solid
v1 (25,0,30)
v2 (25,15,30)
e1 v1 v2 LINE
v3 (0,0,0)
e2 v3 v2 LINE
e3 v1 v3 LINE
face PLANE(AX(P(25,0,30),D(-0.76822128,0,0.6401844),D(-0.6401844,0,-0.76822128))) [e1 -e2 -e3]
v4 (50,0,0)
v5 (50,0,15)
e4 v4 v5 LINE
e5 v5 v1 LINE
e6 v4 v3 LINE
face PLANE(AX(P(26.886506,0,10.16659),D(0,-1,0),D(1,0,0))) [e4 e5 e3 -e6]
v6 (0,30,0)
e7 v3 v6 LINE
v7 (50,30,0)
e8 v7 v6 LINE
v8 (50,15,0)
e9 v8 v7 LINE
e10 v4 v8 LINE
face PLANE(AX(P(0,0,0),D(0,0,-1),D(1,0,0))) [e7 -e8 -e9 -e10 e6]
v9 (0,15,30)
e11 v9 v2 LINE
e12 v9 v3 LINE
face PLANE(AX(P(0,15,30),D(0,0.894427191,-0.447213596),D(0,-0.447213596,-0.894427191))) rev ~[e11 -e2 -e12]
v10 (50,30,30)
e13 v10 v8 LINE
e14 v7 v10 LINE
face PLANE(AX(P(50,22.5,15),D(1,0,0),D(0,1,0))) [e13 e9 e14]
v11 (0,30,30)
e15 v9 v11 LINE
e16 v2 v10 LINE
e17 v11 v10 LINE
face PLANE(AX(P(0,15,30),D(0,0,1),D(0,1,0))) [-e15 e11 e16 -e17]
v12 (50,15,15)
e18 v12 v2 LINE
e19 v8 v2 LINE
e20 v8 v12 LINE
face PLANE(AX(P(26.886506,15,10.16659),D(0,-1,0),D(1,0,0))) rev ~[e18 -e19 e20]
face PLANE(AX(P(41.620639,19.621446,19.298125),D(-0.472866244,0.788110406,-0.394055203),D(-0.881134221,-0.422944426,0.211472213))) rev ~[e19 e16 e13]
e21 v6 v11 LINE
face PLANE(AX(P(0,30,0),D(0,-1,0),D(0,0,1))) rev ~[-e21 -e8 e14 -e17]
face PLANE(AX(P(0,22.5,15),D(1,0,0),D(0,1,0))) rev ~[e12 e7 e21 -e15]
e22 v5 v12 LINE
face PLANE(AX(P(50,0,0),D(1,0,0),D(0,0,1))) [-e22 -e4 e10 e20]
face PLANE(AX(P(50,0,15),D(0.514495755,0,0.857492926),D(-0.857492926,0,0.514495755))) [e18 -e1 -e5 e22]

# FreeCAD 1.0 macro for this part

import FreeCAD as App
import Part
import Sketcher
from FreeCAD import Vector
Q = App.Units.Quantity

doc = App.newDocument("Part")
body = doc.addObject("PartDesign::Body", "Body")

sketch1 = doc.addObject("Sketcher::SketchObject", "Sketch")
body.addObject(sketch1)
sketch1.AttachmentSupport = (doc.YZ_Plane, [""])
sketch1.MapMode = "FlatFace"
sketch1.addGeometry(Part.LineSegment(Vector(30, 0, 0), Vector(30, 30, 0)), False)
sketch1.addGeometry(Part.LineSegment(Vector(30, 30, 0), Vector(15, 30, 0)), False)
sketch1.addGeometry(Part.LineSegment(Vector(15, 30, 0), Vector(0, 0, 0)), False)
sketch1.addGeometry(Part.LineSegment(Vector(0, 0, 0), Vector(30, 0, 0)), False)
sketch1.addConstraint(Sketcher.Constraint("Coincident", 0, 2, 1, 1))
sketch1.addConstraint(Sketcher.Constraint("Coincident", 1, 2, 2, 1))
sketch1.addConstraint(Sketcher.Constraint("Coincident", 2, 2, 3, 1))
sketch1.addConstraint(Sketcher.Constraint("Coincident", 3, 2, 0, 1))
sketch1.addConstraint(Sketcher.Constraint("Vertical", 0))
sketch1.addConstraint(Sketcher.Constraint("Horizontal", 1))
sketch1.addConstraint(Sketcher.Constraint("Horizontal", 3))
sketch1.addConstraint(Sketcher.Constraint("Coincident", 2, 2, -1, 1))
sketch1.addConstraint(Sketcher.Constraint("Equal", 3, 0))
sketch1.addConstraint(Sketcher.Constraint("DistanceX", 1, 2, 1, 1, Q("15 mm")))
sketch1.addConstraint(Sketcher.Constraint("DistanceX", 3, 1, 3, 2, Q("30 mm")))
pad1 = doc.addObject("PartDesign::Pad", "Pad")
body.addObject(pad1)
pad1.Profile = sketch1
pad1.Length = 25

sketch2 = doc.addObject("Sketcher::SketchObject", "Sketch001")
body.addObject(sketch2)
sketch2.AttachmentSupport = (doc.YZ_Plane, [""])
sketch2.MapMode = "FlatFace"
sketch2.addGeometry(Part.LineSegment(Vector(15, 30, 0), Vector(15, 0, 0)), False)
sketch2.addGeometry(Part.LineSegment(Vector(15, 0, 0), Vector(30, 0, 0)), False)
sketch2.addGeometry(Part.LineSegment(Vector(30, 0, 0), Vector(30, 30, 0)), False)
sketch2.addGeometry(Part.LineSegment(Vector(30, 30, 0), Vector(15, 30, 0)), False)
sketch2.addConstraint(Sketcher.Constraint("Coincident", 0, 2, 1, 1))
sketch2.addConstraint(Sketcher.Constraint("Coincident", 1, 2, 2, 1))
sketch2.addConstraint(Sketcher.Constraint("Coincident", 2, 2, 3, 1))
sketch2.addConstraint(Sketcher.Constraint("Coincident", 3, 2, 0, 1))
sketch2.addConstraint(Sketcher.Constraint("Vertical", 0))
sketch2.addConstraint(Sketcher.Constraint("Horizontal", 1))
sketch2.addConstraint(Sketcher.Constraint("Vertical", 2))
sketch2.addConstraint(Sketcher.Constraint("Horizontal", 3))
sketch2.addConstraint(Sketcher.Constraint("PointOnObject", 0, 2, -1))
sketch2.addConstraint(Sketcher.Constraint("DistanceX", 1, 1, 1, 2, Q("15 mm")))
sketch2.addConstraint(Sketcher.Constraint("DistanceY", 0, 2, 0, 1, Q("30 mm")))
sketch2.addConstraint(Sketcher.Constraint("DistanceX", -1, 1, 0, 2, Q("15 mm")))
pad2 = doc.addObject("PartDesign::Pad", "Pad001")
body.addObject(pad2)
pad2.Profile = sketch2
pad2.Length = 50

sketch3 = doc.addObject("Sketcher::SketchObject", "Sketch002")
body.addObject(sketch3)
sketch3.Placement = App.Placement(Vector(5.590062, -9.31677, 4.658385), App.Rotation(Vector(-0.881134221, -0.422944426, 0.211472213), Vector(0, 0.447213595, 0.894427191), Vector(-0.472866244, 0.788110406, -0.394055203), "ZXY"))
sketch3.addGeometry(Part.LineSegment(Vector(-50, 7, 0), Vector(-22, 34, 0)), False)
sketch3.addGeometry(Part.LineSegment(Vector(-22, 34, 0), Vector(-50, 40, 0)), False)
sketch3.addGeometry(Part.LineSegment(Vector(-50, 40, 0), Vector(-50, 7, 0)), False)
sketch3.addConstraint(Sketcher.Constraint("Coincident", 0, 2, 1, 1))
sketch3.addConstraint(Sketcher.Constraint("Coincident", 1, 2, 2, 1))
sketch3.addConstraint(Sketcher.Constraint("Coincident", 2, 2, 0, 1))
sketch3.addConstraint(Sketcher.Constraint("Vertical", 2))
sketch3.addConstraint(Sketcher.Constraint("DistanceY", 2, 2, 2, 1, Q("33.54102 mm")))
sketch3.addConstraint(Sketcher.Constraint("Distance", 0, Q("39.051248 mm")))
sketch3.addConstraint(Sketcher.Constraint("Distance", 1, Q("29.154759 mm")))
sketch3.addConstraint(Sketcher.Constraint("DistanceY", -1, 1, 0, 2, Q("33.54102 mm")))
sketch3.addConstraint(Sketcher.Constraint("DistanceX", 0, 2, -1, 1, Q("22.028356 mm")))
pocket1 = doc.addObject("PartDesign::Pocket", "Pocket")
body.addObject(pocket1)
pocket1.Profile = sketch3
pocket1.Type = "ThroughAll"

sketch4 = doc.addObject("Sketcher::SketchObject", "Sketch003")
body.addObject(sketch4)
sketch4.AttachmentSupport = (doc.XZ_Plane, [""])
sketch4.MapMode = "FlatFace"
sketch4.addGeometry(Part.LineSegment(Vector(50, 0, 0), Vector(50, 15, 0)), False)
sketch4.addGeometry(Part.LineSegment(Vector(50, 15, 0), Vector(25, 30, 0)), False)
sketch4.addGeometry(Part.LineSegment(Vector(25, 30, 0), Vector(0, 0, 0)), False)
sketch4.addGeometry(Part.LineSegment(Vector(0, 0, 0), Vector(50, 0, 0)), False)
sketch4.addConstraint(Sketcher.Constraint("Coincident", 0, 2, 1, 1))
sketch4.addConstraint(Sketcher.Constraint("Coincident", 1, 2, 2, 1))
sketch4.addConstraint(Sketcher.Constraint("Coincident", 2, 2, 3, 1))
sketch4.addConstraint(Sketcher.Constraint("Coincident", 3, 2, 0, 1))
sketch4.addConstraint(Sketcher.Constraint("Vertical", 0))
sketch4.addConstraint(Sketcher.Constraint("Horizontal", 3))
sketch4.addConstraint(Sketcher.Constraint("Coincident", 2, 2, -1, 1))
sketch4.addConstraint(Sketcher.Constraint("DistanceX", 3, 1, 3, 2, Q("50 mm")))
sketch4.addConstraint(Sketcher.Constraint("DistanceY", 0, 1, 0, 2, Q("15 mm")))
sketch4.addConstraint(Sketcher.Constraint("DistanceX", -1, 1, 1, 2, Q("25 mm")))
sketch4.addConstraint(Sketcher.Constraint("DistanceY", -1, 1, 1, 2, Q("30 mm")))
pad3 = doc.addObject("PartDesign::Pad", "Pad002")
body.addObject(pad3)
pad3.Profile = sketch4
pad3.Length = 15
pad3.Reversed = True

doc.recompute()
